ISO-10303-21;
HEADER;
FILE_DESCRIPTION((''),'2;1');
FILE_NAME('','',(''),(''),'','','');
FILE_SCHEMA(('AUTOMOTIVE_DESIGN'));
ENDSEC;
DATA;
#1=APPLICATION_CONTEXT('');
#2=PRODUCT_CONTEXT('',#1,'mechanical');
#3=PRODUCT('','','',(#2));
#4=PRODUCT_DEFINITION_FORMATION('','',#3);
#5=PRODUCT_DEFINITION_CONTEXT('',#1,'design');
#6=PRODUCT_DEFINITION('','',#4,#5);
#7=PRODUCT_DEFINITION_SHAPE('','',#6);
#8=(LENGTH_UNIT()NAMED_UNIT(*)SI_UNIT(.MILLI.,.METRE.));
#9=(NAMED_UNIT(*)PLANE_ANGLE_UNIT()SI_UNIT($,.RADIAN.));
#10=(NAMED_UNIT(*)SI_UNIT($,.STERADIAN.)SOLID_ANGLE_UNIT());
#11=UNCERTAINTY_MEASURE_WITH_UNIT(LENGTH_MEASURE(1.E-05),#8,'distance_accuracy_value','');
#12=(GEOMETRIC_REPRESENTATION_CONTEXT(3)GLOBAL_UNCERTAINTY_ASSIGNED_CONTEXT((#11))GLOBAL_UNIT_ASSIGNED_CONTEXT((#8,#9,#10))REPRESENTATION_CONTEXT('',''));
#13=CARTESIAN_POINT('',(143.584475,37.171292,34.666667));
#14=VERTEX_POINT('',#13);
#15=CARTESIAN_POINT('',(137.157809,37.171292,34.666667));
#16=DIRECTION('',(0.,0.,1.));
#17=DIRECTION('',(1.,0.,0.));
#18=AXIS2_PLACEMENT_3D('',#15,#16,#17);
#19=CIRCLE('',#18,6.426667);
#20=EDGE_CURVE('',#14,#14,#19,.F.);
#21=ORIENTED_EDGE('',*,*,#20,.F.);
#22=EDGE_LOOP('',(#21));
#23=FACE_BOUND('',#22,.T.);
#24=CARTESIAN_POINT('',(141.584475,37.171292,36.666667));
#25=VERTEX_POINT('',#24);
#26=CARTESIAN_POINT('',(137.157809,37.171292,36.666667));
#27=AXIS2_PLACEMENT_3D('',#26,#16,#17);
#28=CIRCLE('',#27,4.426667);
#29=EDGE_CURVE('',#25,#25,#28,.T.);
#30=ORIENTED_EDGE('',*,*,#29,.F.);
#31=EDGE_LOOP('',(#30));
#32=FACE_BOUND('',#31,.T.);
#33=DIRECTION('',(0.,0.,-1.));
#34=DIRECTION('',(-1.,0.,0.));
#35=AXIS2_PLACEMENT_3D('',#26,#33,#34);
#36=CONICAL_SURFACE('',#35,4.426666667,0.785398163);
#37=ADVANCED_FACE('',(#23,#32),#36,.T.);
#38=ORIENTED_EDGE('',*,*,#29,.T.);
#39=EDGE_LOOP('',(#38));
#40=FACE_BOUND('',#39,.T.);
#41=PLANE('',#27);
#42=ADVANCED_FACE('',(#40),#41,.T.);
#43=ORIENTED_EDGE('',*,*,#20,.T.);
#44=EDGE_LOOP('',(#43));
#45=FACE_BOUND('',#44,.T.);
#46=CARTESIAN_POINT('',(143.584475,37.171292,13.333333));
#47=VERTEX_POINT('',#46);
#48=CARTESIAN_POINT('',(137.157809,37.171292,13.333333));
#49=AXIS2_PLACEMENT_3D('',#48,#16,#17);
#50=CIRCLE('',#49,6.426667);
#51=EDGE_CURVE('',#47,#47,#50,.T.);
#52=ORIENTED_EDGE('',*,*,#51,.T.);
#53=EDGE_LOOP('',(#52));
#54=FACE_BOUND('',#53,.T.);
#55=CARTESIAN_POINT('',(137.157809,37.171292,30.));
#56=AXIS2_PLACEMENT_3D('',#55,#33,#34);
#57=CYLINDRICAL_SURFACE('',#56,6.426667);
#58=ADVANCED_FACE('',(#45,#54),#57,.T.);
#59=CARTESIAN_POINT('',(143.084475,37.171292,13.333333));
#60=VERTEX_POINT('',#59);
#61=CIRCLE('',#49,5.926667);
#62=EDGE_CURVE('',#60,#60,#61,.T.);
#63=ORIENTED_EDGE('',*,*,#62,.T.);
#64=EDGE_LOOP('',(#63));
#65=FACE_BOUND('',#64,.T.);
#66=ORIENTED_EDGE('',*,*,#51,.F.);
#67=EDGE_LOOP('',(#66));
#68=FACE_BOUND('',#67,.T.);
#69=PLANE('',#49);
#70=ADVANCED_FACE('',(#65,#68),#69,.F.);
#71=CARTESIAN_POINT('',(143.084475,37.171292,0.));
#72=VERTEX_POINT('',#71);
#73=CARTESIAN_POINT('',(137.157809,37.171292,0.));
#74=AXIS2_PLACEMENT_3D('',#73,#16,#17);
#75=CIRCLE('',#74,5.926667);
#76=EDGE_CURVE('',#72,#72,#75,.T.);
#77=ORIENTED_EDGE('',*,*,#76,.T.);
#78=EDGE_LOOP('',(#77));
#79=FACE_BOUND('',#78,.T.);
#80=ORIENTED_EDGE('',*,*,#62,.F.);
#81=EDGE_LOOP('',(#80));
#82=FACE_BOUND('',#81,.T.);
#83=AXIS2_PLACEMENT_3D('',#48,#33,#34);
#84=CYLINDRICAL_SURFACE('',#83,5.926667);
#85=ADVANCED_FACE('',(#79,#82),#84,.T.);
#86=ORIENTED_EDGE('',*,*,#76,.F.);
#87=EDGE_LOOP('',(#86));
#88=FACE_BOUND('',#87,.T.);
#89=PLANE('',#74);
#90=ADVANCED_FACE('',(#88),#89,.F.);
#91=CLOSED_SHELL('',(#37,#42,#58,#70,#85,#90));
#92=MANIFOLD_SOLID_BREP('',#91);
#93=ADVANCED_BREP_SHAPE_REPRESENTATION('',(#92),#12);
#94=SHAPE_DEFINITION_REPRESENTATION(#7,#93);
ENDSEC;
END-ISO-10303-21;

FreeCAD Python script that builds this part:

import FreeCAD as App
import Part
import Sketcher


def edges_at(feature, points):
    """Names of the edges that pass closest to the given points."""
    edges = feature.Shape.Edges
    near = lambda p: min(range(len(edges)), key=lambda i: edges[i].distToShape(Part.Vertex(*p))[0])
    return sorted({f"Edge{near(p) + 1}" for p in points})

doc = App.newDocument("Part")
body = doc.addObject("PartDesign::Body", "Body")

# Sketch on XY plane
sketch1 = doc.addObject("Sketcher::SketchObject", "Sketch")
body.addObject(sketch1)
sketch1.AttachmentSupport = (doc.XY_Plane, [""])
sketch1.MapMode = "FlatFace"
sketch1.addGeometry(Part.Circle(App.Vector(137, 37, 0), App.Vector(0, 0, 1), 6), False)
sketch1.addConstraint([
    Sketcher.Constraint("Diameter", 0, 11.853333),
    Sketcher.Constraint("DistanceX", -1, 1, 0, 3, 137.157809),
    Sketcher.Constraint("DistanceY", -1, 1, 0, 3, 37.171292),
])
pad1 = doc.addObject("PartDesign::Pad", "Pad")
body.addObject(pad1)
pad1.Profile = sketch1
pad1.Length = 13.333333

# Sketch on XY plane
sketch2 = doc.addObject("Sketcher::SketchObject", "Sketch001")
body.addObject(sketch2)
sketch2.AttachmentSupport = (doc.XY_Plane, [""])
sketch2.MapMode = "FlatFace"
sketch2.AttachmentOffset = App.Placement(App.Vector(0, 0, 13.333333), App.Rotation())
sketch2.addGeometry(Part.Circle(App.Vector(137, 37, 0), App.Vector(0, 0, 1), 6), False)
sketch2.addConstraint([
    Sketcher.Constraint("Diameter", 0, 12.853333),
    Sketcher.Constraint("DistanceX", -1, 1, 0, 3, 137.157809),
    Sketcher.Constraint("DistanceY", -1, 1, 0, 3, 37.171292),
])
pad2 = doc.addObject("PartDesign::Pad", "Pad001")
body.addObject(pad2)
pad2.Profile = sketch2
pad2.Length = 16.666667

# Sketch on XY plane
sketch3 = doc.addObject("Sketcher::SketchObject", "Sketch002")
body.addObject(sketch3)
sketch3.AttachmentSupport = (doc.XY_Plane, [""])
sketch3.MapMode = "FlatFace"
sketch3.AttachmentOffset = App.Placement(App.Vector(0, 0, 30), App.Rotation())
sketch3.addGeometry(Part.Circle(App.Vector(137, 37, 0), App.Vector(0, 0, 1), 6), False)
sketch3.addConstraint([
    Sketcher.Constraint("Diameter", 0, 12.853333),
    Sketcher.Constraint("DistanceX", -1, 1, 0, 3, 137.157809),
    Sketcher.Constraint("DistanceY", -1, 1, 0, 3, 37.171292),
])
pad3 = doc.addObject("PartDesign::Pad", "Pad002")
body.addObject(pad3)
pad3.Profile = sketch3
pad3.Length = 6.666667
doc.recompute()

chamfer = doc.addObject("PartDesign::Chamfer", "Chamfer")
body.addObject(chamfer)
chamfer.Base = (pad3, edges_at(pad3, [(130.731, 37.171, 36.667)]))
chamfer.Size = 2

doc.recompute()
